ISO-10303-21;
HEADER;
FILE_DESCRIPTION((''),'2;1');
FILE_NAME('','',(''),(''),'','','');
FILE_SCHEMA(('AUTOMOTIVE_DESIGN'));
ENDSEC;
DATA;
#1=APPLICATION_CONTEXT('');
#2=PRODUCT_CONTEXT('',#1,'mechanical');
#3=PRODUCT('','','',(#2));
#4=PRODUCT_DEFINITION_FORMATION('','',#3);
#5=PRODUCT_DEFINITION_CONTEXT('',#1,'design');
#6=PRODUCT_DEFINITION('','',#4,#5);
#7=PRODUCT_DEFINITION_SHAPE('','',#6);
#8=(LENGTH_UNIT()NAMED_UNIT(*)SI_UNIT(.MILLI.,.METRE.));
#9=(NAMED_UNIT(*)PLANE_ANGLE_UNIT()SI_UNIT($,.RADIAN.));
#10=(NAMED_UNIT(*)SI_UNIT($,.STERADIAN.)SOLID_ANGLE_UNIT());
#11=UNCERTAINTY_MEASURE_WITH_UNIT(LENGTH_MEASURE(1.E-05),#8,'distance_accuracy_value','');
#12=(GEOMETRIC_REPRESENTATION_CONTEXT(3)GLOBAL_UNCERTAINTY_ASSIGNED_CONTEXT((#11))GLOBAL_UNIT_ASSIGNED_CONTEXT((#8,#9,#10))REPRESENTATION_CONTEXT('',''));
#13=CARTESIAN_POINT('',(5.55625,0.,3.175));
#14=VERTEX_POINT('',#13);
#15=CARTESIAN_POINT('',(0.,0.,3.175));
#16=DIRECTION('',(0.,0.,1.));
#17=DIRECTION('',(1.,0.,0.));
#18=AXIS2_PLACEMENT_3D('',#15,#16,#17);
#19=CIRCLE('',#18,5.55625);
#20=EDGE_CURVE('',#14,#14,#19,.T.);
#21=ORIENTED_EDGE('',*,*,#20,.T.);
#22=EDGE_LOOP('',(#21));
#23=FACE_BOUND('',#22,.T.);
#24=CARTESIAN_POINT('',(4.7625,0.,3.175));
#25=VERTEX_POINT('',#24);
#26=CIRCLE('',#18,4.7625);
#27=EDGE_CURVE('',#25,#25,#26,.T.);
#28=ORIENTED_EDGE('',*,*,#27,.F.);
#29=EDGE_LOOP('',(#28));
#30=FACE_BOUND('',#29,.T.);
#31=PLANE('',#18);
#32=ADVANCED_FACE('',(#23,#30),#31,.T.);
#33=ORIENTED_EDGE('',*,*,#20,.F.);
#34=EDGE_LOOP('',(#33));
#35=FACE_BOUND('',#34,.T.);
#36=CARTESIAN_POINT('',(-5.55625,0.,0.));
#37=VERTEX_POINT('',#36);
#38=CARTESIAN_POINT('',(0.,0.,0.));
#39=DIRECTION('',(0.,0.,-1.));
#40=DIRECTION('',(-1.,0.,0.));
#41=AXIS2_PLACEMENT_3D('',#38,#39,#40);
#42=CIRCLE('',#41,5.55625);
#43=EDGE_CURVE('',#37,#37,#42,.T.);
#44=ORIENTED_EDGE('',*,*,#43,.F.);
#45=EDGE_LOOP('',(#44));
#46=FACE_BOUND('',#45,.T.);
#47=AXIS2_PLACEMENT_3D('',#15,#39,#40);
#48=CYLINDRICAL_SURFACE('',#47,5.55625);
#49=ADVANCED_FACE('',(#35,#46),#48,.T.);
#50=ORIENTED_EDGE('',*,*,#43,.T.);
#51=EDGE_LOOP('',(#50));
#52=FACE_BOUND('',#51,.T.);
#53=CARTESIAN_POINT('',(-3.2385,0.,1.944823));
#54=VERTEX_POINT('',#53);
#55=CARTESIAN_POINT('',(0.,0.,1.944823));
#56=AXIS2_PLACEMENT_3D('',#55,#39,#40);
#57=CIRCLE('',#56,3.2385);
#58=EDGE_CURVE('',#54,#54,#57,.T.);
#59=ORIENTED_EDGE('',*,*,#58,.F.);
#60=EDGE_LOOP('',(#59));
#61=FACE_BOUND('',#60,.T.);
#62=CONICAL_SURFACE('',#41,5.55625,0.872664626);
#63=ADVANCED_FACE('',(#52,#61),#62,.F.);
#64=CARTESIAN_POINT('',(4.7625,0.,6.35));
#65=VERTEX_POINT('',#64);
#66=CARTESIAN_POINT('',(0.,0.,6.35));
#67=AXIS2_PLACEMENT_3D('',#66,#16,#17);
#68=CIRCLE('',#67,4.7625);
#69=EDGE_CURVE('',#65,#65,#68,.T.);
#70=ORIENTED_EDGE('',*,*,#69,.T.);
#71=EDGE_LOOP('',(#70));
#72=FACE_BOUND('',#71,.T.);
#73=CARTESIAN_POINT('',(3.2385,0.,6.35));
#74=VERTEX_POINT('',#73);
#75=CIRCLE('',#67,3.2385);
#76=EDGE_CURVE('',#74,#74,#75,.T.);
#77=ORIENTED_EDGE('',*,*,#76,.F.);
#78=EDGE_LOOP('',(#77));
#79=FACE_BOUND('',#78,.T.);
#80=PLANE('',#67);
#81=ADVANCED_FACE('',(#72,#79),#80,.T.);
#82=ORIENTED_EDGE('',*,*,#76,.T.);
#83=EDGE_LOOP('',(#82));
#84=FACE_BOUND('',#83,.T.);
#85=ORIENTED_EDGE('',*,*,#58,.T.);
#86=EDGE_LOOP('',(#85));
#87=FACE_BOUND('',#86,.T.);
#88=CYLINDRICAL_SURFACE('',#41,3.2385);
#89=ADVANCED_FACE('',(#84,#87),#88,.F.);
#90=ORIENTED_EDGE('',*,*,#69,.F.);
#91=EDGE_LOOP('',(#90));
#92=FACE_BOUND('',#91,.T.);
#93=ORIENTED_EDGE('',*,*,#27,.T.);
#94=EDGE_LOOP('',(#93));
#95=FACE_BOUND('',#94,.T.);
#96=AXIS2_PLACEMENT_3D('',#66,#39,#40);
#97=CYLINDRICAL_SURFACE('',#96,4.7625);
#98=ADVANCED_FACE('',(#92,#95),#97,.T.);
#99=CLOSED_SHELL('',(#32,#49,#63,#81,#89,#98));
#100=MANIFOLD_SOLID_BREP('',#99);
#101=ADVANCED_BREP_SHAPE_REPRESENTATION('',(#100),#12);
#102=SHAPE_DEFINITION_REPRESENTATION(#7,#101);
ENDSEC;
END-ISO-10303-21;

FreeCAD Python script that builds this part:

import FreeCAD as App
import Part
import Sketcher

V = App.Vector
Q = App.Units.Quantity

doc = App.newDocument("Part")
params = doc.addObject("Spreadsheet::Sheet", "Params")
for row, (alias, value) in enumerate([
    ("sketch1_diameter", "0.4375 in"),
    ("pad1_length", "0.125 in"),
    ("sketch2_diameter", "0.375 in"),
    ("pad2_length", "0.125 in"),
    ("sketch3_diameter", "0.255 in"),
    ("hole_diameter", "0.255 in"),
    ("hole_csink_diameter", "0.4375 in"),
], start=1):
    params.set(f"A{row}", alias)
    params.set(f"B{row}", "=" + value)
    params.setAlias(f"B{row}", alias)

body = doc.addObject("PartDesign::Body", "Body")

sketch1 = body.newObject("Sketcher::SketchObject", "Sketch")
sketch1.AttachmentSupport = (doc.getObject("XY_Plane"), [""])
sketch1.MapMode = "FlatFace"
sketch1.addGeometry(Part.Circle(V(0, 0, 0), V(0, 0, 1), 6), False)
sketch1.addConstraint([
    Sketcher.Constraint("Coincident", 0, 3, -1, 1),
    Sketcher.Constraint("Diameter", 0, Q("0.4375 in")),
])
sketch1.setExpression("Constraints[1]", "Params.sketch1_diameter")
pad1 = body.newObject("PartDesign::Pad", "Pad")
pad1.Profile = sketch1
pad1.setExpression("Length", "Params.pad1_length")

sketch2 = body.newObject("Sketcher::SketchObject", "Sketch001")
sketch2.AttachmentSupport = (doc.getObject("XY_Plane"), [""])
sketch2.MapMode = "FlatFace"
sketch2.AttachmentOffset = App.Placement(V(0, 0, 0.125 * 25.4), App.Rotation())
sketch2.addGeometry(Part.Circle(V(0, 0, 0), V(0, 0, 1), 4.8), False)
sketch2.addConstraint([
    Sketcher.Constraint("Coincident", 0, 3, -1, 1),
    Sketcher.Constraint("Diameter", 0, Q("0.375 in")),
])
sketch2.setExpression("Constraints[1]", "Params.sketch2_diameter")
pad2 = body.newObject("PartDesign::Pad", "Pad001")
pad2.Profile = sketch2
pad2.setExpression("Length", "Params.pad2_length")

sketch3 = body.newObject("Sketcher::SketchObject", "Sketch002")
sketch3.AttachmentSupport = (doc.getObject("XY_Plane"), [""])
sketch3.MapMode = "FlatFace"
sketch3.addGeometry(Part.Circle(V(0, 0, 0), V(0, 0, 1), 3.2), False)
sketch3.addConstraint([
    Sketcher.Constraint("Coincident", 0, 3, -1, 1),
    Sketcher.Constraint("Diameter", 0, Q("0.255 in")),
])
sketch3.setExpression("Constraints[1]", "Params.sketch3_diameter")
doc.recompute()
hole = body.newObject("PartDesign::Hole", "Hole")
hole.Profile = sketch3
hole.ThreadType = "None"
hole.setExpression("Diameter", "Params.hole_diameter")
hole.DepthType = "ThroughAll"
hole.HoleCutType = "Countersink"
hole.setExpression("HoleCutDiameter", "Params.hole_csink_diameter")
hole.HoleCutCountersinkAngle = 100
hole.Reversed = True

doc.recompute()
